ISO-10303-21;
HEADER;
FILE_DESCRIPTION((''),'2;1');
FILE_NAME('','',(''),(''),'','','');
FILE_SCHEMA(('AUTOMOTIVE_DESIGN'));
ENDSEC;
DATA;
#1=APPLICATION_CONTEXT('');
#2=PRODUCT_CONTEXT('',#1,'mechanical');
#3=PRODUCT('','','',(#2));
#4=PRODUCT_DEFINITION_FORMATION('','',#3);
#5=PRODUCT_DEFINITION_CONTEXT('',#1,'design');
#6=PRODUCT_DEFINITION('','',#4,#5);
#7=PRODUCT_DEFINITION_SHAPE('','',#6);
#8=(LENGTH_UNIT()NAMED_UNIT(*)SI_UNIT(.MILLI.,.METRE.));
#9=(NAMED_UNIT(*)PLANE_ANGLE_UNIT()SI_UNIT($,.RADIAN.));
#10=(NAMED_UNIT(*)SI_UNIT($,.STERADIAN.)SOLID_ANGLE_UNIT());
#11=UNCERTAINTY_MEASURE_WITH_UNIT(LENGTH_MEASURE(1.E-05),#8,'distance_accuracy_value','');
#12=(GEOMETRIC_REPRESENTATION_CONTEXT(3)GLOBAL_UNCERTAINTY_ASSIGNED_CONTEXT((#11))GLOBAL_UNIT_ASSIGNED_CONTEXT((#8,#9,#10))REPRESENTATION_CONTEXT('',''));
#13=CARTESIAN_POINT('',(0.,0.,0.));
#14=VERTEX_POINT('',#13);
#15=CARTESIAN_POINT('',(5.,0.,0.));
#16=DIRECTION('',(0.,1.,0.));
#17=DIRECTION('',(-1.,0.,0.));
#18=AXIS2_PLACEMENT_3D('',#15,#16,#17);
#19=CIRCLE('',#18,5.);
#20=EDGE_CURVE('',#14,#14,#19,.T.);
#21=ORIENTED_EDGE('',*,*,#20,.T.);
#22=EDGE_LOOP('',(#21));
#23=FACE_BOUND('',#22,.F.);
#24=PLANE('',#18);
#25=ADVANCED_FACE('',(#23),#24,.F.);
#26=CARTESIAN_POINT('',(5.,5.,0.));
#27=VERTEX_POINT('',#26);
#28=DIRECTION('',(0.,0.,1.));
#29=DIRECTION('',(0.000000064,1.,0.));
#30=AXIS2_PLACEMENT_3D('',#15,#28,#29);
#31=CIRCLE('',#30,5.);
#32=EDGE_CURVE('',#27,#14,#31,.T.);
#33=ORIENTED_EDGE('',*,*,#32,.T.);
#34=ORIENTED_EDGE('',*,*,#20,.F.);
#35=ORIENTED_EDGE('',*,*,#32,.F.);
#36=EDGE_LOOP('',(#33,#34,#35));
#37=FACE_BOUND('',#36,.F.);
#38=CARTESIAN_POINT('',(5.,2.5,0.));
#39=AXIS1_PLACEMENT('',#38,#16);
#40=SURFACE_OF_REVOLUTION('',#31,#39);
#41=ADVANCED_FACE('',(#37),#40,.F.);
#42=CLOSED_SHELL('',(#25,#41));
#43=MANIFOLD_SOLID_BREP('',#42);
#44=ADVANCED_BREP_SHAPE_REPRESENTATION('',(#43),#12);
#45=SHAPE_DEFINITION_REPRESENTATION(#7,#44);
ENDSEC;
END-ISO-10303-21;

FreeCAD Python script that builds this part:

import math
import FreeCAD as App
import Part
import Sketcher
Q = App.Units.Quantity

doc = App.newDocument("Part")
body = doc.addObject("PartDesign::Body", "Body")

# Sketch on XY plane
sketch1 = doc.addObject("Sketcher::SketchObject", "Sketch")
body.addObject(sketch1)
sketch1.AttachmentSupport = (doc.XY_Plane, [""])
sketch1.MapMode = "FlatFace"
sketch1.addGeometry([
    Part.ArcOfCircle(Part.Circle(App.Vector(5, 0, 0), App.Vector(0, 0, 1), 5), math.radians(89.999996), math.radians(180.000004)),
    Part.LineSegment(App.Vector(0, 0, 0), App.Vector(5, 0, 0)),
    Part.LineSegment(App.Vector(5, 0, 0), App.Vector(5, 5, 0)),
], False)
sketch1.addGeometry(Part.LineSegment(App.Vector(5, 0, 0), App.Vector(5, 5, 0)), True)  # axis
sketch1.addConstraint([
    Sketcher.Constraint("Coincident", 0, 2, 1, 1),
    Sketcher.Constraint("Coincident", 1, 2, 2, 1),
    Sketcher.Constraint("Coincident", 2, 2, 0, 1),
    Sketcher.Constraint("Horizontal", 1),
    Sketcher.Constraint("Vertical", 2),
    Sketcher.Constraint("Vertical", 3),
    Sketcher.Constraint("Coincident", 0, 2, -1, 1),
    Sketcher.Constraint("Coincident", 1, 2, 0, 3),
    Sketcher.Constraint("Coincident", 3, 1, 0, 3),
    Sketcher.Constraint("Equal", 2, 3),
    Sketcher.Constraint("Radius", 0, Q("5 mm")),
])
revolution = doc.addObject("PartDesign::Revolution", "Revolution")
body.addObject(revolution)
revolution.Profile = sketch1
revolution.ReferenceAxis = (sketch1, ["Axis0"])
revolution.Angle = 360

doc.recompute()
